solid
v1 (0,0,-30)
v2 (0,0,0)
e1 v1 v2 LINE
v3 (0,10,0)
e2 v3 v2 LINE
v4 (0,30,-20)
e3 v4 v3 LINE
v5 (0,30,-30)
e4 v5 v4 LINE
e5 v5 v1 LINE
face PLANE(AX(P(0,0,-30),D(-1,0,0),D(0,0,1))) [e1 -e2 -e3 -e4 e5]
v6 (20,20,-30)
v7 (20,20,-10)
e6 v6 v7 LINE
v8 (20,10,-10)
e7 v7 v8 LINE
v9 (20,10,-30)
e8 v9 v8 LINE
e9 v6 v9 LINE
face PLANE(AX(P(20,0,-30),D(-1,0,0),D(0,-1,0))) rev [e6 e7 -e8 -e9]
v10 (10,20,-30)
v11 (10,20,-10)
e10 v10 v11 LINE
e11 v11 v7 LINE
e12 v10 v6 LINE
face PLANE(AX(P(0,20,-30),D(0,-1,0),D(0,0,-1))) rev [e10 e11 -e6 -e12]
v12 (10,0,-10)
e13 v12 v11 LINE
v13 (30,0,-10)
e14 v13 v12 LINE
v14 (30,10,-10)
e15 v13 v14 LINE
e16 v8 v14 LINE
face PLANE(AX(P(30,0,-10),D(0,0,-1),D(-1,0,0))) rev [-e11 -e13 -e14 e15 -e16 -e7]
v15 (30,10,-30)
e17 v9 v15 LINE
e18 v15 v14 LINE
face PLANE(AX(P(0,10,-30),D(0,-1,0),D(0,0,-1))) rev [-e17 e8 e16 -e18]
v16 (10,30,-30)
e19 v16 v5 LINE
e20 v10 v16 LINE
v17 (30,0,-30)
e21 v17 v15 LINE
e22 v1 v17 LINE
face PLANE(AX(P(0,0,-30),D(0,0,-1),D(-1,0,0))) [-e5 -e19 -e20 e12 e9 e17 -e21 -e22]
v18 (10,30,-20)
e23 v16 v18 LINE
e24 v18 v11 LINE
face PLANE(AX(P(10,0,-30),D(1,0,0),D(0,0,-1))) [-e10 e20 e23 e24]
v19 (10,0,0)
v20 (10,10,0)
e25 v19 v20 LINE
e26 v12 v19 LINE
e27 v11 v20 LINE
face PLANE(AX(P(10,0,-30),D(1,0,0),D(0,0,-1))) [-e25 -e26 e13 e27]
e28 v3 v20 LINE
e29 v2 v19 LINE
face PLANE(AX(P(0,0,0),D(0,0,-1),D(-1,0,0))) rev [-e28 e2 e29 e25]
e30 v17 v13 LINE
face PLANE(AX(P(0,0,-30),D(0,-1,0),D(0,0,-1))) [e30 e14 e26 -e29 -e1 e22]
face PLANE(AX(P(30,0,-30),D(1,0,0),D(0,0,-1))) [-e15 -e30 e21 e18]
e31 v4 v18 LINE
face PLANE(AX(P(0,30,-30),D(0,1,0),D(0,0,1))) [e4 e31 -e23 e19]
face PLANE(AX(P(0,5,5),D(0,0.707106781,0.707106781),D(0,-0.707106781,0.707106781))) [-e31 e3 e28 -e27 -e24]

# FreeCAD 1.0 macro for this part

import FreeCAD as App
import Part
import Sketcher

V = App.Vector
Q = App.Units.Quantity


def add_polygon(sketch, points):
    """Adds a closed chain of lines whose ends are joined by coincident constraints."""
    first, n = sketch.GeometryCount, len(points)
    for a, b in zip(points, points[1:] + points[:1]):
        sketch.addGeometry(Part.LineSegment(App.Vector(*a, 0), App.Vector(*b, 0)), False)
    for i in range(n):
        sketch.addConstraint(Sketcher.Constraint("Coincident", first + i, 2, first + (i + 1) % n, 1))

doc = App.newDocument("Part")
body = doc.addObject("PartDesign::Body", "Body")

sketch1 = body.newObject("Sketcher::SketchObject", "Sketch")
sketch1.AttachmentSupport = (doc.getObject("XY_Plane"), [""])
sketch1.MapMode = "FlatFace"
add_polygon(sketch1, [(0, 30), (0, 0), (30, 0), (30, 30)])
sketch1.addConstraint(Sketcher.Constraint("Vertical", 0))
sketch1.addConstraint(Sketcher.Constraint("Horizontal", 1))
sketch1.addConstraint(Sketcher.Constraint("Vertical", 2))
sketch1.addConstraint(Sketcher.Constraint("Horizontal", 3))
sketch1.addConstraint(Sketcher.Constraint("Coincident", 0, 2, -1, 1))
sketch1.addConstraint(Sketcher.Constraint("Equal", 3, 0))
sketch1.addConstraint(Sketcher.Constraint("DistanceX", 1, 1, 1, 2, Q("30 mm")))
pad1 = body.newObject("PartDesign::Pad", "Pad")
pad1.Profile = sketch1
pad1.Length = 30
pad1.Reversed = True

sketch2 = body.newObject("Sketcher::SketchObject", "Sketch001")
sketch2.AttachmentSupport = (doc.getObject("XY_Plane"), [""])
sketch2.MapMode = "FlatFace"
add_polygon(sketch2, [(10, 30), (10, 20), (20, 20), (20, 10), (30, 10), (30, 30)])
sketch2.addConstraint(Sketcher.Constraint("Vertical", 0))
sketch2.addConstraint(Sketcher.Constraint("Horizontal", 1))
sketch2.addConstraint(Sketcher.Constraint("Vertical", 2))
sketch2.addConstraint(Sketcher.Constraint("Horizontal", 3))
sketch2.addConstraint(Sketcher.Constraint("Vertical", 4))
sketch2.addConstraint(Sketcher.Constraint("Horizontal", 5))
sketch2.addConstraint(Sketcher.Constraint("Equal", 1, 3))
sketch2.addConstraint(Sketcher.Constraint("Equal", 3, 0))
sketch2.addConstraint(Sketcher.Constraint("Equal", 0, 2))
sketch2.addConstraint(Sketcher.Constraint("DistanceX", 1, 1, 1, 2, Q("10 mm")))
sketch2.addConstraint(Sketcher.Constraint("DistanceX", -1, 1, 0, 2, Q("10 mm")))
sketch2.addConstraint(Sketcher.Constraint("DistanceY", -1, 1, 0, 2, Q("20 mm")))
pocket1 = body.newObject("PartDesign::Pocket", "Pocket")
pocket1.Profile = sketch2
pocket1.Type = "ThroughAll"

sketch3 = body.newObject("Sketcher::SketchObject", "Sketch002")
sketch3.AttachmentSupport = (doc.getObject("XZ_Plane"), [""])
sketch3.MapMode = "FlatFace"
sketch3.AttachmentOffset = App.Placement(V(0, 0, -10), App.Rotation())
add_polygon(sketch3, [(10, -10), (10, 0), (30, 0), (30, -10)])
sketch3.addConstraint(Sketcher.Constraint("Vertical", 0))
sketch3.addConstraint(Sketcher.Constraint("Horizontal", 1))
sketch3.addConstraint(Sketcher.Constraint("Vertical", 2))
sketch3.addConstraint(Sketcher.Constraint("Horizontal", 3))
sketch3.addConstraint(Sketcher.Constraint("PointOnObject", 0, 2, -1))
sketch3.addConstraint(Sketcher.Constraint("DistanceX", 1, 1, 1, 2, Q("20 mm")))
sketch3.addConstraint(Sketcher.Constraint("DistanceY", 0, 1, 0, 2, Q("10 mm")))
sketch3.addConstraint(Sketcher.Constraint("DistanceX", -1, 1, 0, 2, Q("10 mm")))
pocket2 = body.newObject("PartDesign::Pocket", "Pocket001")
pocket2.Profile = sketch3
pocket2.Type = "ThroughAll"
pocket2.Midplane = True

sketch4 = body.newObject("Sketcher::SketchObject", "Sketch003")
sketch4.AttachmentSupport = (doc.getObject("YZ_Plane"), [""])
sketch4.MapMode = "FlatFace"
sketch4.AttachmentOffset = App.Placement(V(0, 0, 30), App.Rotation())
add_polygon(sketch4, [(30, 0), (10, 0), (30, -20)])
sketch4.addConstraint(Sketcher.Constraint("Horizontal", 0))
sketch4.addConstraint(Sketcher.Constraint("Vertical", 2))
sketch4.addConstraint(Sketcher.Constraint("PointOnObject", 0, 2, -1))
sketch4.addConstraint(Sketcher.Constraint("Equal", 0, 2))
sketch4.addConstraint(Sketcher.Constraint("DistanceX", 0, 2, 0, 1, Q("20 mm")))
sketch4.addConstraint(Sketcher.Constraint("DistanceX", -1, 1, 0, 2, Q("10 mm")))
pocket3 = body.newObject("PartDesign::Pocket", "Pocket002")
pocket3.Profile = sketch4
pocket3.Type = "ThroughAll"

doc.recompute()
